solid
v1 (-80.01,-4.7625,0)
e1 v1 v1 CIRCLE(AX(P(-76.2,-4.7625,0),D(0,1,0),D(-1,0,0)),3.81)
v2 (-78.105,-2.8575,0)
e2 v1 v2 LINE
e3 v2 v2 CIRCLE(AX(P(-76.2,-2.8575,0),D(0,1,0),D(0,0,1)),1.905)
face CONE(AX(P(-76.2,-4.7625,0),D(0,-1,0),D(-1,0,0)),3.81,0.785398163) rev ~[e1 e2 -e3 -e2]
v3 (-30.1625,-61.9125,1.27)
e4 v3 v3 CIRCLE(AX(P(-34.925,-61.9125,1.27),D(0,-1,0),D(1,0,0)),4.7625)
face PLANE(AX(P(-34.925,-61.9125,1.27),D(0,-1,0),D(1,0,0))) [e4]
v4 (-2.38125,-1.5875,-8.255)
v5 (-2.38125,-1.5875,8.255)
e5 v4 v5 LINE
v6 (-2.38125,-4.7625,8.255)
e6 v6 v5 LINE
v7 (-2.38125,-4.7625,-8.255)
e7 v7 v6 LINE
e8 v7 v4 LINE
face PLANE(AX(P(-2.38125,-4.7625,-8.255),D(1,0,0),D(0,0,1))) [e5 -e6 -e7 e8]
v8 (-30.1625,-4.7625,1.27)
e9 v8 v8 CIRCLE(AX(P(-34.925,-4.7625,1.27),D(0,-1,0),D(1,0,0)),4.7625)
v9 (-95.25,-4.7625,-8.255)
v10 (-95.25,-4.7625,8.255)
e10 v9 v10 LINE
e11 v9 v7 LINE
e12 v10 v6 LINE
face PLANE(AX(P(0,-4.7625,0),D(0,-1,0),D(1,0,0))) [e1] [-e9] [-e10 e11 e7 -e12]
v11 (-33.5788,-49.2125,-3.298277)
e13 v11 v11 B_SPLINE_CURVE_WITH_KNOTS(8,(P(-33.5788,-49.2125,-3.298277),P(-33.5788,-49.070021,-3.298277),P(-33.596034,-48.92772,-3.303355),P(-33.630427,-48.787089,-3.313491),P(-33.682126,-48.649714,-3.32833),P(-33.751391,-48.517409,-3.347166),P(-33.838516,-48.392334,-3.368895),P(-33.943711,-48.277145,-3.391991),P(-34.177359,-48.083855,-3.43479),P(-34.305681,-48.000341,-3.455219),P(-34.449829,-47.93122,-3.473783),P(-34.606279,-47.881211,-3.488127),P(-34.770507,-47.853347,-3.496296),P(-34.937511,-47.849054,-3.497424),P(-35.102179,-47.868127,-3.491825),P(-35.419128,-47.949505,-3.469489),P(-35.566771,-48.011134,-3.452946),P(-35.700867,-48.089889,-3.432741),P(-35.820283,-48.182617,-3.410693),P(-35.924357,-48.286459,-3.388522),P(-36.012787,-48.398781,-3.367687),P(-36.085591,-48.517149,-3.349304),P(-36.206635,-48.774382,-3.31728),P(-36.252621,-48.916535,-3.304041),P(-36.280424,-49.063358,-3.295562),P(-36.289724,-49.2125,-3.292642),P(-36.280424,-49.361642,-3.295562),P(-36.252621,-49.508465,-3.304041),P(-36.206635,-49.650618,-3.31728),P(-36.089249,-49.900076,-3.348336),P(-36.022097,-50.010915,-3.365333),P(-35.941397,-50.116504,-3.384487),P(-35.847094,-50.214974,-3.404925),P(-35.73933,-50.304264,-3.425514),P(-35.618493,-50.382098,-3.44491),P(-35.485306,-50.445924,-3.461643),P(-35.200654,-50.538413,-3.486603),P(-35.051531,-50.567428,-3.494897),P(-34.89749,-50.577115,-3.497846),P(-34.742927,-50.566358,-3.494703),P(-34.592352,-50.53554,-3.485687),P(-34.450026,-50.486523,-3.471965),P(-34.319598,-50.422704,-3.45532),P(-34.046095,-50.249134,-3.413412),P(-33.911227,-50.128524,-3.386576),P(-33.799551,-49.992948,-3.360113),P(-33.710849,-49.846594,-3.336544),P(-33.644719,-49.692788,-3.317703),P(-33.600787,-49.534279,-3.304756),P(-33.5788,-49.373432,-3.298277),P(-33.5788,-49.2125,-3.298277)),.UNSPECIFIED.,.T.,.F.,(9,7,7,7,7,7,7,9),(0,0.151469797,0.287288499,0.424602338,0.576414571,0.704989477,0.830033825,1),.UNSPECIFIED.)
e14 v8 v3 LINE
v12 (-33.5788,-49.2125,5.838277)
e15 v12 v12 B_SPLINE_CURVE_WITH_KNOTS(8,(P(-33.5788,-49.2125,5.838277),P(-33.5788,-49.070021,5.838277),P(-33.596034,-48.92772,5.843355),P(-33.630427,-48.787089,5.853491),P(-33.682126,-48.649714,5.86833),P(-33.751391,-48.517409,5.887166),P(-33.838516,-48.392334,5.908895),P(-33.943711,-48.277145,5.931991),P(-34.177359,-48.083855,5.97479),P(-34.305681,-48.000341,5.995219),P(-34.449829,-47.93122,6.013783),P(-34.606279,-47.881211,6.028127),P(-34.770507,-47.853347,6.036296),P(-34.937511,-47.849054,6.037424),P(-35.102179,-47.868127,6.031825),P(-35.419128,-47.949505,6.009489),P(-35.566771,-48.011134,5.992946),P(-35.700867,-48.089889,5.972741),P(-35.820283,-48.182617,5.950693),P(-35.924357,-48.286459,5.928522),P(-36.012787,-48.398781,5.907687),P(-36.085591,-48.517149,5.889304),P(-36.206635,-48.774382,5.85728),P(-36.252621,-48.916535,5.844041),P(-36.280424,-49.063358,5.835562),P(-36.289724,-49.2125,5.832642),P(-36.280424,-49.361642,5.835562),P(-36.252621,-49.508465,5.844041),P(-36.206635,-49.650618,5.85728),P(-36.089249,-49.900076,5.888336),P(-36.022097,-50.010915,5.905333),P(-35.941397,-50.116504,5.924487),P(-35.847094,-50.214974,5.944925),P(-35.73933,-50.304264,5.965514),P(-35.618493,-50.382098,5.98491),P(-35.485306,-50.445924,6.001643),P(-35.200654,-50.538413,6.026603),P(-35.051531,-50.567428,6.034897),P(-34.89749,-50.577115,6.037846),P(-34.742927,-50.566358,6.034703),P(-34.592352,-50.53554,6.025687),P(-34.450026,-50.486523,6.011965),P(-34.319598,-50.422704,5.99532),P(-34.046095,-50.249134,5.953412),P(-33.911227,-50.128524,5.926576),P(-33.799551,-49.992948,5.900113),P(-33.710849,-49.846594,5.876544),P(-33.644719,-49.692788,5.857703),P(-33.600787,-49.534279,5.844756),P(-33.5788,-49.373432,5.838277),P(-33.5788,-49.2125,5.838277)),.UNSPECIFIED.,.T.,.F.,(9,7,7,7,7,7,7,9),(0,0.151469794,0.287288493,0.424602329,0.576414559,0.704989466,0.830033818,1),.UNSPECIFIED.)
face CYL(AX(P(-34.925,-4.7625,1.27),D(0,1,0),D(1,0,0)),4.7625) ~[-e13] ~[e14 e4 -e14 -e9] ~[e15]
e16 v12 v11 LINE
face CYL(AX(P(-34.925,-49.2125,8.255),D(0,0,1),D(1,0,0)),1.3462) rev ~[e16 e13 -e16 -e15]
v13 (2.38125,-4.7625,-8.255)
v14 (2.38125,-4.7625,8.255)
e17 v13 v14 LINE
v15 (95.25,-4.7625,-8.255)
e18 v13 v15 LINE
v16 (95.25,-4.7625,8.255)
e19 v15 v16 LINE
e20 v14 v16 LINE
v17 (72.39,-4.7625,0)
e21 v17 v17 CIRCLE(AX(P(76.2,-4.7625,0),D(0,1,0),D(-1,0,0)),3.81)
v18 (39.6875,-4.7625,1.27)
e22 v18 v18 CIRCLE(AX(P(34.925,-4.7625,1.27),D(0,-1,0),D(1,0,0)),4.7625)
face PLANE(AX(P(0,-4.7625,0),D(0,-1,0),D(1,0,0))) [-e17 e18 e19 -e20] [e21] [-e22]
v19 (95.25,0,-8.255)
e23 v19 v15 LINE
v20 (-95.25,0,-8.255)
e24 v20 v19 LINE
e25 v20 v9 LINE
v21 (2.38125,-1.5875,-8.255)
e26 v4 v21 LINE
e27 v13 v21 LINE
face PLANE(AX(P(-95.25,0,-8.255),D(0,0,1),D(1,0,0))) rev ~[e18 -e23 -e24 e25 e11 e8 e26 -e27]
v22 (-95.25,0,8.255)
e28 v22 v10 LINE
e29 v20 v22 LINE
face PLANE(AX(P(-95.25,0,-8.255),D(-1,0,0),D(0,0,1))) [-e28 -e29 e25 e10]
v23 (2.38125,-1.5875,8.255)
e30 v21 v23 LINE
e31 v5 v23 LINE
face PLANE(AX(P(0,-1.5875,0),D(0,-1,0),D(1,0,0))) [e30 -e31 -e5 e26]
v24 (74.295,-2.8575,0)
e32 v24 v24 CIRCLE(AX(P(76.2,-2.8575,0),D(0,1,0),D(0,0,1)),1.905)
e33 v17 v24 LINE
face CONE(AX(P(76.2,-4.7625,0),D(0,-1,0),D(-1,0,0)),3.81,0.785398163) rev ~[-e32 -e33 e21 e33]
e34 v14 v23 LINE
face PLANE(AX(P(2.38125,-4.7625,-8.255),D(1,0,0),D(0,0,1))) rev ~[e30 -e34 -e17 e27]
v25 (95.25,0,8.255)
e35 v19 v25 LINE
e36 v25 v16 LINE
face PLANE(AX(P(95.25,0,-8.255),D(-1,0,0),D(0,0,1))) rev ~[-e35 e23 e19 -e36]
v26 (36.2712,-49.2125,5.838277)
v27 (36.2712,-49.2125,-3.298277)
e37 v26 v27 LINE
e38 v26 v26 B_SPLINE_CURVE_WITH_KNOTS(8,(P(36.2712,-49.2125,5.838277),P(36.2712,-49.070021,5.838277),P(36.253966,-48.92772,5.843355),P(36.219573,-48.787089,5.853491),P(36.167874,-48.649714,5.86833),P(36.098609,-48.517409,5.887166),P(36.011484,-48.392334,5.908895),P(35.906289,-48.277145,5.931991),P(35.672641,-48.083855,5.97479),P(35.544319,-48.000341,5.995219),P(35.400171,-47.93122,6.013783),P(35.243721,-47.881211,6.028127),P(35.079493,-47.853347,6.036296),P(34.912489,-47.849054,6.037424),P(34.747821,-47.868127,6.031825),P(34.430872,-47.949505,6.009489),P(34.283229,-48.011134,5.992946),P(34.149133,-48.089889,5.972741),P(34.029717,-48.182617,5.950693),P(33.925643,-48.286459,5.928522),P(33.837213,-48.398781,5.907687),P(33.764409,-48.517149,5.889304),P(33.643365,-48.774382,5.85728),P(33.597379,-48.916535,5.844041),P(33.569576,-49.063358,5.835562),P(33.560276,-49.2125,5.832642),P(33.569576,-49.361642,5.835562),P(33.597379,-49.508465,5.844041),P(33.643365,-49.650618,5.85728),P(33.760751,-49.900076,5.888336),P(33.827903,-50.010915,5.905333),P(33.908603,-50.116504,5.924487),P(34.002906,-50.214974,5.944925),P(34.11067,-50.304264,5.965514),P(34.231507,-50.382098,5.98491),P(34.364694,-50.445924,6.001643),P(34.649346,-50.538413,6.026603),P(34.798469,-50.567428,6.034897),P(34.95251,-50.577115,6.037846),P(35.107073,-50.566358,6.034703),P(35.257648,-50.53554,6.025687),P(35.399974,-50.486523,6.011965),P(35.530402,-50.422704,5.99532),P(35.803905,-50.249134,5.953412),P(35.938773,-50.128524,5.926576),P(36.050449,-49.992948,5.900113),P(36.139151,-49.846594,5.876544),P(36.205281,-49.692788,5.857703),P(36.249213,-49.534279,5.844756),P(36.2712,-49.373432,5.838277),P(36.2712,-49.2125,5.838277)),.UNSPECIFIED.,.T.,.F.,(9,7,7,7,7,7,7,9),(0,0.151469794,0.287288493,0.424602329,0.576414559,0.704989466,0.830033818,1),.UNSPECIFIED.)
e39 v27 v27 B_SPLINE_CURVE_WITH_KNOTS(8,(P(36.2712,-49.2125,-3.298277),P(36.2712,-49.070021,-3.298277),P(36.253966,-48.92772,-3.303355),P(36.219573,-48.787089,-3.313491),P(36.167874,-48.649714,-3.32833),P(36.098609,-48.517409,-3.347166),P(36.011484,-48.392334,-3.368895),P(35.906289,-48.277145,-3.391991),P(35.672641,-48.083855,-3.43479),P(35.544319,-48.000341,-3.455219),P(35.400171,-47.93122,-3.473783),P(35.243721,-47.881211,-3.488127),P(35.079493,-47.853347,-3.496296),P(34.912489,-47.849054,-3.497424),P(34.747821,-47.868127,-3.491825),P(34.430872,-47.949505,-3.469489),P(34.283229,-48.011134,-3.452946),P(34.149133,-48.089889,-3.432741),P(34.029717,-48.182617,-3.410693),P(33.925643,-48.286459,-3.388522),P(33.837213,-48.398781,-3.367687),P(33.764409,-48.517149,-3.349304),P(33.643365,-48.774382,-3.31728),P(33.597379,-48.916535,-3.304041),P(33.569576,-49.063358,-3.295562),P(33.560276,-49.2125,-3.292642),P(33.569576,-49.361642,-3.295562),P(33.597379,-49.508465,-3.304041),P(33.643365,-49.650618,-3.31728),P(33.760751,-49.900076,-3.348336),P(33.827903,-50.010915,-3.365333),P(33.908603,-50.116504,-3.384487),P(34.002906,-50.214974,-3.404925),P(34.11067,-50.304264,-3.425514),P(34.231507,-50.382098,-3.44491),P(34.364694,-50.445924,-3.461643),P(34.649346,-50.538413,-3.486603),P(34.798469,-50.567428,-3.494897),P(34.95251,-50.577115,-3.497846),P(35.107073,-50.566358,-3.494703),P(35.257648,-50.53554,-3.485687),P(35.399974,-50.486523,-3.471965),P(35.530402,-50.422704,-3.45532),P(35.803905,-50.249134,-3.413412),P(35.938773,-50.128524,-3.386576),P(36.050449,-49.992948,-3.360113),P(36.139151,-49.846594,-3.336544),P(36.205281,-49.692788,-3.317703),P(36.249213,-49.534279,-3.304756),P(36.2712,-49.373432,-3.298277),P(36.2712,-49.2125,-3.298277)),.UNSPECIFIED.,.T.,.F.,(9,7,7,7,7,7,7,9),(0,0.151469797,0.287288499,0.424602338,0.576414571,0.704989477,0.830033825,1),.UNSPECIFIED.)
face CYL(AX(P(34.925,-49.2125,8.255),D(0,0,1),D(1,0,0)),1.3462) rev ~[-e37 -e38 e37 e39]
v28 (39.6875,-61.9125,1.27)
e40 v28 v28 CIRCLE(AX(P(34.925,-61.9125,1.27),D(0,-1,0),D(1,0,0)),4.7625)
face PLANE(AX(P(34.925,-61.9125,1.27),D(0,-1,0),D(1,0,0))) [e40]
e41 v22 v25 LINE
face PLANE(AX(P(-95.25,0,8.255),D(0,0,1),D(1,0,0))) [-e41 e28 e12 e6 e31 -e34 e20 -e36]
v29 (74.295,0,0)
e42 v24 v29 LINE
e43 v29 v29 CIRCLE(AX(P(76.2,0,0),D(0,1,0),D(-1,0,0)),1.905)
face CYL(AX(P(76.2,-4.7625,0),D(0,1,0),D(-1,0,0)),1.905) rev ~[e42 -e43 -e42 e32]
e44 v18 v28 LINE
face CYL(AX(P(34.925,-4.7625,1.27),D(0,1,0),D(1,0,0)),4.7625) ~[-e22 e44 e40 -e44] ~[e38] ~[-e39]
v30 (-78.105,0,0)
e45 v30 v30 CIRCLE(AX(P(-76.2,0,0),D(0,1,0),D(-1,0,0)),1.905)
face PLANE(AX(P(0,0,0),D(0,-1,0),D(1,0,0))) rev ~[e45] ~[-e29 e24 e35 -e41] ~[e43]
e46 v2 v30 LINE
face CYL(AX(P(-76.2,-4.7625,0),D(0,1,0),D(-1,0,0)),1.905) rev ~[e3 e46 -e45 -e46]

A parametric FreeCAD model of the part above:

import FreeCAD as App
import Part
import Sketcher
from FreeCAD import Vector
Q = App.Units.Quantity


def add_polygon(sketch, points):
    """Adds a closed chain of lines whose ends are joined by coincident constraints."""
    first, n = sketch.GeometryCount, len(points)
    for a, b in zip(points, points[1:] + points[:1]):
        sketch.addGeometry(Part.LineSegment(App.Vector(*a, 0), App.Vector(*b, 0)), False)
    for i in range(n):
        sketch.addConstraint(Sketcher.Constraint("Coincident", first + i, 2, first + (i + 1) % n, 1))

doc = App.newDocument("Part")
body = doc.addObject("PartDesign::Body", "Body")

sketch1 = body.newObject("Sketcher::SketchObject", "Sketch")
sketch1.AttachmentSupport = (doc.getObject("XZ_Plane"), [""])
sketch1.MapMode = "FlatFace"
add_polygon(sketch1, [(-95.25, 8.255), (-95.25, -8.255), (95.25, -8.255), (95.25, 8.255)])
sketch1.addConstraint(Sketcher.Constraint("Vertical", 0))
sketch1.addConstraint(Sketcher.Constraint("Horizontal", 1))
sketch1.addConstraint(Sketcher.Constraint("Vertical", 2))
sketch1.addConstraint(Sketcher.Constraint("Horizontal", 3))
sketch1.addConstraint(Sketcher.Constraint("Symmetric", 0, 2, 2, 2, -1, 1))
sketch1.addConstraint(Sketcher.Constraint("DistanceX", 1, 1, 1, 2, Q("7.5 in")))
sketch1.addConstraint(Sketcher.Constraint("DistanceY", 0, 2, 0, 1, Q("0.65 in")))
pad1 = body.newObject("PartDesign::Pad", "Pad")
pad1.Profile = sketch1
pad1.Length = Q("0.1875 in")

sketch2 = body.newObject("Sketcher::SketchObject", "Sketch001")
sketch2.AttachmentSupport = (doc.getObject("XZ_Plane"), [""])
sketch2.MapMode = "FlatFace"
sketch2.AttachmentOffset = App.Placement(Vector(0, 0, 0.1875 * 25.4), App.Rotation())
sketch2.addGeometry(Part.Circle(Vector(-34.925, 1.27, 0), Vector(0, 0, 1), 4.7625), False)
sketch2.addGeometry(Part.Circle(Vector(34.925, 1.27, 0), Vector(0, 0, 1), 4.7625), False)
sketch2.addConstraint(Sketcher.Constraint("Equal", 0, 1))
sketch2.addConstraint(Sketcher.Constraint("Symmetric", 0, 3, 1, 3, -2))
sketch2.addConstraint(Sketcher.Constraint("Diameter", 0, Q("0.375 in")))
sketch2.addConstraint(Sketcher.Constraint("DistanceY", -1, 1, 0, 3, Q("0.05 in")))
sketch2.addConstraint(Sketcher.Constraint("DistanceX", 0, 3, 1, 3, Q("2.75 in")))
pad2 = body.newObject("PartDesign::Pad", "Pad001")
pad2.Profile = sketch2
pad2.Length = Q("2.25 in")

sketch3 = body.newObject("Sketcher::SketchObject", "Sketch002")
sketch3.AttachmentSupport = (doc.getObject("XZ_Plane"), [""])
sketch3.MapMode = "FlatFace"
sketch3.AttachmentOffset = App.Placement(Vector(0, 0, 0.1875 * 25.4), App.Rotation())
sketch3.addGeometry(Part.Circle(Vector(-76.2, 0, 0), Vector(0, 0, 1), 1.905), False)
sketch3.addGeometry(Part.Circle(Vector(76.2, 0, 0), Vector(0, 0, 1), 1.905), False)
sketch3.addConstraint(Sketcher.Constraint("Equal", 0, 1))
sketch3.addConstraint(Sketcher.Constraint("Symmetric", 0, 3, 1, 3, -1, 1))
sketch3.addConstraint(Sketcher.Constraint("PointOnObject", 0, 3, -1))
sketch3.addConstraint(Sketcher.Constraint("Diameter", 0, Q("0.15 in")))
sketch3.addConstraint(Sketcher.Constraint("DistanceX", 0, 3, -1, 1, Q("3 in")))
doc.recompute()
hole = body.newObject("PartDesign::Hole", "Hole")
hole.Profile = sketch3
hole.ThreadType = "None"
hole.Diameter = Q("0.15 in")
hole.DepthType = "ThroughAll"
hole.HoleCutType = "Countersink"
hole.HoleCutDiameter = Q("0.3 in")
hole.HoleCutCountersinkAngle = 90

sketch4 = body.newObject("Sketcher::SketchObject", "Sketch003")
sketch4.AttachmentSupport = (doc.getObject("XZ_Plane"), [""])
sketch4.MapMode = "FlatFace"
sketch4.AttachmentOffset = App.Placement(Vector(0, 0, 0.1875 * 25.4), App.Rotation())
add_polygon(sketch4, [(-2.38125, 8.255), (-2.38125, -8.255), (2.38125, -8.255), (2.38125, 8.255)])
sketch4.addConstraint(Sketcher.Constraint("Vertical", 0))
sketch4.addConstraint(Sketcher.Constraint("Horizontal", 1))
sketch4.addConstraint(Sketcher.Constraint("Vertical", 2))
sketch4.addConstraint(Sketcher.Constraint("Horizontal", 3))
sketch4.addConstraint(Sketcher.Constraint("Symmetric", 0, 2, 2, 2, -1, 1))
sketch4.addConstraint(Sketcher.Constraint("DistanceY", 0, 2, 0, 1, Q("0.65 in")))
sketch4.addConstraint(Sketcher.Constraint("DistanceX", 1, 1, 1, 2, Q("0.1875 in")))
pocket1 = body.newObject("PartDesign::Pocket", "Pocket")
pocket1.Profile = sketch4
pocket1.Length = Q("0.125 in")

sketch5 = body.newObject("Sketcher::SketchObject", "Sketch004")
sketch5.AttachmentSupport = (doc.getObject("XY_Plane"), [""])
sketch5.MapMode = "FlatFace"
sketch5.AttachmentOffset = App.Placement(Vector(0, 0, 0.325 * 25.4), App.Rotation())
sketch5.addGeometry(Part.Circle(Vector(-34.925, -49.2125, 0), Vector(0, 0, 1), 1.3462), False)
sketch5.addGeometry(Part.Circle(Vector(34.925, -49.2125, 0), Vector(0, 0, 1), 1.3462), False)
sketch5.addConstraint(Sketcher.Constraint("Equal", 0, 1))
sketch5.addConstraint(Sketcher.Constraint("Symmetric", 0, 3, 1, 3, -2))
sketch5.addConstraint(Sketcher.Constraint("Diameter", 0, Q("0.106 in")))
sketch5.addConstraint(Sketcher.Constraint("DistanceX", 0, 3, 1, 3, Q("2.75 in")))
sketch5.addConstraint(Sketcher.Constraint("DistanceY", 0, 3, -1, 1, Q("1.9375 in")))
pocket2 = body.newObject("PartDesign::Pocket", "Pocket001")
pocket2.Profile = sketch5
pocket2.Type = "ThroughAll"

doc.recompute()
